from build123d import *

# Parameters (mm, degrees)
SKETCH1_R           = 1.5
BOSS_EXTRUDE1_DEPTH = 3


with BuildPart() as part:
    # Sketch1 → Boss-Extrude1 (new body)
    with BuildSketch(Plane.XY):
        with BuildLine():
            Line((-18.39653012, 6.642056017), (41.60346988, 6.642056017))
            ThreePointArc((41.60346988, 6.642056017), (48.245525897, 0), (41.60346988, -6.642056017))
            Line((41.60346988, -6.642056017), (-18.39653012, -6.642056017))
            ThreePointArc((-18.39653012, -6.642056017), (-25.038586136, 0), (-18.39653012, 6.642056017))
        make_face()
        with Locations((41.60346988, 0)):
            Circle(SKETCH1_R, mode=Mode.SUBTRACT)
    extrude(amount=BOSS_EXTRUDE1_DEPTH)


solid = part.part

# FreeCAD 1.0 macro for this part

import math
import FreeCAD as App
import Part
import Sketcher
from FreeCAD import Vector
Q = App.Units.Quantity

doc = App.newDocument("Part")
body = doc.addObject("PartDesign::Body", "Body")

# Sketch on XY plane
sketch1 = body.newObject("Sketcher::SketchObject", "Sketch")
sketch1.AttachmentSupport = (doc.getObject("XY_Plane"), [""])
sketch1.MapMode = "FlatFace"
sketch1.addGeometry([
    Part.LineSegment(Vector(41.6, 6.6, 0), Vector(-18.4, 6.6, 0)),  # 0
    Part.ArcOfCircle(Part.Circle(Vector(-18.4, 0, 0), Vector(0, 0, 1), 6.6), math.radians(90), math.radians(270)),  # 1
    Part.LineSegment(Vector(-18.4, -6.6, 0), Vector(41.6, -6.6, 0)),  # 2
    Part.ArcOfCircle(Part.Circle(Vector(41.6, 0, 0), Vector(0, 0, 1), 6.6), math.radians(-90), math.radians(90)),  # 3
    Part.Circle(Vector(41.6, 0, 0), Vector(0, 0, 1), 1.5),  # 4
], False)
sketch1.addConstraint([
    Sketcher.Constraint("Tangent", 0, 2, 1, 1),
    Sketcher.Constraint("Tangent", 1, 2, 2, 1),
    Sketcher.Constraint("Tangent", 2, 2, 3, 1),
    Sketcher.Constraint("Tangent", 3, 2, 0, 1),
    Sketcher.Constraint("Horizontal", 0),
    Sketcher.Constraint("Horizontal", 2),
    Sketcher.Constraint("Coincident", 4, 3, 3, 3),
    Sketcher.Constraint("PointOnObject", 1, 3, -1),
    Sketcher.Constraint("Diameter", 4, Q("3 mm")),
    Sketcher.Constraint("DistanceX", 0, 2, 0, 1, Q("60 mm")),
    Sketcher.Constraint("Radius", 1, Q("6.642056 mm")),
    Sketcher.Constraint("DistanceX", 1, 3, -1, 1, Q("18.39653 mm")),
])
pad1 = body.newObject("PartDesign::Pad", "Pad")
pad1.Profile = sketch1
pad1.Length = 3

doc.recompute()
